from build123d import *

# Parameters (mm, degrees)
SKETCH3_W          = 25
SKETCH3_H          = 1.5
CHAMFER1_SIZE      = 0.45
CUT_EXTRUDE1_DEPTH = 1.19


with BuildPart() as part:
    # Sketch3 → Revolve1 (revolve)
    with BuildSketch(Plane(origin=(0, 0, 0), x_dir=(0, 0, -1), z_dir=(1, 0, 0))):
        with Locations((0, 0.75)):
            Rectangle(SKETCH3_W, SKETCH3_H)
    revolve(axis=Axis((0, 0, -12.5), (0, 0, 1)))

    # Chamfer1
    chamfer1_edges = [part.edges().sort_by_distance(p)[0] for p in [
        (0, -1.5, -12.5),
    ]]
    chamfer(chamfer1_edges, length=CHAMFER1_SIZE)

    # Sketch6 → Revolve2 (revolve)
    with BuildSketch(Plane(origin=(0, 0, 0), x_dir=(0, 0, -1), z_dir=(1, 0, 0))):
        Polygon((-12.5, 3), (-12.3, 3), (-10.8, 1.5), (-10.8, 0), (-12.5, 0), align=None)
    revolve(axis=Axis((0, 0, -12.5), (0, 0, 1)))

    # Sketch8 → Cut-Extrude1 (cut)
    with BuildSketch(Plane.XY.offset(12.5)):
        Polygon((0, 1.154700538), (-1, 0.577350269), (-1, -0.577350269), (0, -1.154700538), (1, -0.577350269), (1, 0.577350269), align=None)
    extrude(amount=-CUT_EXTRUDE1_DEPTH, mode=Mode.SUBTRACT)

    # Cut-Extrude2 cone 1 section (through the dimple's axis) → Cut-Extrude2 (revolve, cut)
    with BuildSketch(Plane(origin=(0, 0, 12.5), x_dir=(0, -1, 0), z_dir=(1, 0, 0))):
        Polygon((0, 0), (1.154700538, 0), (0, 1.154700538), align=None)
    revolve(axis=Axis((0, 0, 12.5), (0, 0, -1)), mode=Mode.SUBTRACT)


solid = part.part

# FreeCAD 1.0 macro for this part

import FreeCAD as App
import Part
import Sketcher
Q = App.Units.Quantity


def edges_at(feature, points):
    """Names of the edges that pass closest to the given points."""
    edges = feature.Shape.Edges
    near = lambda p: min(range(len(edges)), key=lambda i: edges[i].distToShape(Part.Vertex(*p))[0])
    return sorted({f"Edge{near(p) + 1}" for p in points})

doc = App.newDocument("Part")
body = doc.addObject("PartDesign::Body", "Body")

sketch1 = body.newObject("Sketcher::SketchObject", "Sketch")
sketch1.AttachmentSupport = (doc.getObject("YZ_Plane"), [""])
sketch1.MapMode = "FlatFace"
sketch1.addGeometry(Part.LineSegment(App.Vector(1.5, 12.5, 0), App.Vector(0, 12.5, 0)), False)
sketch1.addGeometry(Part.LineSegment(App.Vector(0, 12.5, 0), App.Vector(0, -12.5, 0)), False)
sketch1.addGeometry(Part.LineSegment(App.Vector(0, -12.5, 0), App.Vector(1.5, -12.5, 0)), False)
sketch1.addGeometry(Part.LineSegment(App.Vector(1.5, -12.5, 0), App.Vector(1.5, 12.5, 0)), False)
sketch1.addConstraint(Sketcher.Constraint("Coincident", 0, 2, 1, 1))
sketch1.addConstraint(Sketcher.Constraint("Coincident", 1, 2, 2, 1))
sketch1.addConstraint(Sketcher.Constraint("Coincident", 2, 2, 3, 1))
sketch1.addConstraint(Sketcher.Constraint("Coincident", 3, 2, 0, 1))
sketch1.addConstraint(Sketcher.Constraint("Horizontal", 0))
sketch1.addConstraint(Sketcher.Constraint("Vertical", 1))
sketch1.addConstraint(Sketcher.Constraint("Horizontal", 2))
sketch1.addConstraint(Sketcher.Constraint("Vertical", 3))
sketch1.addConstraint(Sketcher.Constraint("Symmetric", 0, 2, 1, 2, -1, 1))
sketch1.addConstraint(Sketcher.Constraint("DistanceY", 1, 2, 1, 1, 25.0))
sketch1.addConstraint(Sketcher.Constraint("DistanceX", 0, 2, 0, 1, 1.5))
revolution = body.newObject("PartDesign::Revolution", "Revolution")
revolution.Profile = sketch1
revolution.ReferenceAxis = (sketch1, ["V_Axis"])
revolution.Angle = 360
doc.recompute()

chamfer = body.newObject("PartDesign::Chamfer", "Chamfer")
chamfer.Base = (revolution, edges_at(revolution, [(0, -1.5, -12.5)]))
chamfer.Size = 0.45

sketch2 = body.newObject("Sketcher::SketchObject", "Sketch001")
sketch2.AttachmentSupport = (doc.getObject("YZ_Plane"), [""])
sketch2.MapMode = "FlatFace"
sketch2.addGeometry(Part.LineSegment(App.Vector(3, 12.3, 0), App.Vector(3, 12.5, 0)), False)
sketch2.addGeometry(Part.LineSegment(App.Vector(3, 12.5, 0), App.Vector(0, 12.5, 0)), False)
sketch2.addGeometry(Part.LineSegment(App.Vector(0, 12.5, 0), App.Vector(0, 10.8, 0)), False)
sketch2.addGeometry(Part.LineSegment(App.Vector(0, 10.8, 0), App.Vector(1.5, 10.8, 0)), False)
sketch2.addGeometry(Part.LineSegment(App.Vector(1.5, 10.8, 0), App.Vector(3, 12.3, 0)), False)
sketch2.addConstraint(Sketcher.Constraint("Coincident", 0, 2, 1, 1))
sketch2.addConstraint(Sketcher.Constraint("Coincident", 1, 2, 2, 1))
sketch2.addConstraint(Sketcher.Constraint("Coincident", 2, 2, 3, 1))
sketch2.addConstraint(Sketcher.Constraint("Coincident", 3, 2, 4, 1))
sketch2.addConstraint(Sketcher.Constraint("Coincident", 4, 2, 0, 1))
sketch2.addConstraint(Sketcher.Constraint("Vertical", 0))
sketch2.addConstraint(Sketcher.Constraint("Horizontal", 1))
sketch2.addConstraint(Sketcher.Constraint("Vertical", 2))
sketch2.addConstraint(Sketcher.Constraint("Horizontal", 3))
sketch2.addConstraint(Sketcher.Constraint("PointOnObject", 1, 2, -2))
sketch2.addConstraint(Sketcher.Constraint("DistanceX", 1, 2, 1, 1, 3.0))
sketch2.addConstraint(Sketcher.Constraint("Angle", 4, Q("45 deg")))
sketch2.addConstraint(Sketcher.Constraint("DistanceX", 3, 1, 3, 2, 1.5))
sketch2.addConstraint(Sketcher.Constraint("DistanceY", 0, 1, 0, 2, 0.2))
sketch2.addConstraint(Sketcher.Constraint("DistanceY", -1, 1, 0, 2, 12.5))
revolution2 = body.newObject("PartDesign::Revolution", "Revolution001")
revolution2.Profile = sketch2
revolution2.ReferenceAxis = (sketch2, ["V_Axis"])
revolution2.Angle = 360

sketch3 = body.newObject("Sketcher::SketchObject", "Sketch002")
sketch3.AttachmentSupport = (doc.getObject("XY_Plane"), [""])
sketch3.MapMode = "FlatFace"
sketch3.AttachmentOffset = App.Placement(App.Vector(0, 0, 12.5), App.Rotation())
sketch3.addGeometry(Part.LineSegment(App.Vector(0, 1.154701, 0), App.Vector(-1, 0.57735, 0)), False)
sketch3.addGeometry(Part.LineSegment(App.Vector(-1, 0.57735, 0), App.Vector(-1, -0.57735, 0)), False)
sketch3.addGeometry(Part.LineSegment(App.Vector(-1, -0.57735, 0), App.Vector(0, -1.154701, 0)), False)
sketch3.addGeometry(Part.LineSegment(App.Vector(0, -1.154701, 0), App.Vector(1, -0.57735, 0)), False)
sketch3.addGeometry(Part.LineSegment(App.Vector(1, -0.57735, 0), App.Vector(1, 0.57735, 0)), False)
sketch3.addGeometry(Part.LineSegment(App.Vector(1, 0.57735, 0), App.Vector(0, 1.154701, 0)), False)
sketch3.addConstraint(Sketcher.Constraint("Coincident", 0, 2, 1, 1))
sketch3.addConstraint(Sketcher.Constraint("Coincident", 1, 2, 2, 1))
sketch3.addConstraint(Sketcher.Constraint("Coincident", 2, 2, 3, 1))
sketch3.addConstraint(Sketcher.Constraint("Coincident", 3, 2, 4, 1))
sketch3.addConstraint(Sketcher.Constraint("Coincident", 4, 2, 5, 1))
sketch3.addConstraint(Sketcher.Constraint("Coincident", 5, 2, 0, 1))
sketch3.addConstraint(Sketcher.Constraint("Vertical", 1))
sketch3.addConstraint(Sketcher.Constraint("Vertical", 4))
sketch3.addConstraint(Sketcher.Constraint("Symmetric", 0, 2, 3, 2, -1, 1))
sketch3.addConstraint(Sketcher.Constraint("Symmetric", 2, 2, 5, 2, -1, 1))
sketch3.addConstraint(Sketcher.Constraint("PointOnObject", 2, 2, -2))
sketch3.addConstraint(Sketcher.Constraint("Parallel", 2, 5))
sketch3.addConstraint(Sketcher.Constraint("Horizontal", 1, 2, 3, 2))
sketch3.addConstraint(Sketcher.Constraint("Angle", 0, Q("-150 deg")))
sketch3.addConstraint(Sketcher.Constraint("DistanceX", 0, 2, -1, 1, 1.0))
sketch3.addConstraint(Sketcher.Constraint("DistanceY", 1, 2, 1, 1, 1.154701))
pocket1 = body.newObject("PartDesign::Pocket", "Pocket")
pocket1.Profile = sketch3
pocket1.Length = 1.19

sketch4 = body.newObject("Sketcher::SketchObject", "Sketch003")
sketch4.AttachmentSupport = (doc.getObject("YZ_Plane"), [""])
sketch4.MapMode = "FlatFace"
sketch4.addGeometry(Part.LineSegment(App.Vector(0, 12.5, 0), App.Vector(-1.154701, 12.5, 0)), False)
sketch4.addGeometry(Part.LineSegment(App.Vector(-1.154701, 12.5, 0), App.Vector(0, 11.345299, 0)), False)
sketch4.addGeometry(Part.LineSegment(App.Vector(0, 11.345299, 0), App.Vector(0, 12.5, 0)), False)
sketch4.addConstraint(Sketcher.Constraint("Coincident", 0, 2, 1, 1))
sketch4.addConstraint(Sketcher.Constraint("Coincident", 1, 2, 2, 1))
sketch4.addConstraint(Sketcher.Constraint("Coincident", 2, 2, 0, 1))
sketch4.addConstraint(Sketcher.Constraint("Horizontal", 0))
sketch4.addConstraint(Sketcher.Constraint("Vertical", 2))
sketch4.addConstraint(Sketcher.Constraint("PointOnObject", 1, 2, -2))
sketch4.addConstraint(Sketcher.Constraint("Equal", 0, 2))
sketch4.addConstraint(Sketcher.Constraint("DistanceY", -1, 1, 0, 2, 12.5))
sketch4.addConstraint(Sketcher.Constraint("DistanceX", 0, 2, 0, 1, 1.154701))
groove = body.newObject("PartDesign::Groove", "Groove")
groove.Profile = sketch4
groove.ReferenceAxis = (sketch4, ["V_Axis"])
groove.Angle = 360

doc.recompute()
